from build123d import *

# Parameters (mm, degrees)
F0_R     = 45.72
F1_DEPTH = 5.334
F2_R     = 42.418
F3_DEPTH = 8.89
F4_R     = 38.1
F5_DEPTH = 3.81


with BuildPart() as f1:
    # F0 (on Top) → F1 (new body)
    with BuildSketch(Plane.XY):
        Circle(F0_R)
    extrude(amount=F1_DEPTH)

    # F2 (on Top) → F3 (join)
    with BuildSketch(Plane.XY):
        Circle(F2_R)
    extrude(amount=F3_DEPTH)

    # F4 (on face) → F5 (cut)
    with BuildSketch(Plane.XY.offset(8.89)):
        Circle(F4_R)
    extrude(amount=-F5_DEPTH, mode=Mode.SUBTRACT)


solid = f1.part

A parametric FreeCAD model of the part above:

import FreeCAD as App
import Part
import Sketcher

V = App.Vector
Q = App.Units.Quantity

doc = App.newDocument("Part")
params = doc.addObject("Spreadsheet::Sheet", "Params")
for row, (alias, value) in enumerate([
    ("sketch1_diameter", "3.6 in"),
    ("pad1_length", "0.21 in"),
    ("sketch2_diameter", "3.34 in"),
    ("pad2_length", "0.35 in"),
    ("sketch3_diameter", "3 in"),
    ("pocket1_length", "0.15 in"),
], start=1):
    params.set(f"A{row}", alias)
    params.set(f"B{row}", "=" + value)
    params.setAlias(f"B{row}", alias)

body = doc.addObject("PartDesign::Body", "Body")

sketch1 = body.newObject("Sketcher::SketchObject", "Sketch")
sketch1.AttachmentSupport = (doc.getObject("XY_Plane"), [""])
sketch1.MapMode = "FlatFace"
sketch1.addGeometry(Part.Circle(V(0, 0, 0), V(0, 0, 1), 46), False)
sketch1.addConstraint([
    Sketcher.Constraint("Coincident", 0, 3, -1, 1),
    Sketcher.Constraint("Diameter", 0, Q("3.6 in")),
])
sketch1.setExpression("Constraints[1]", "Params.sketch1_diameter")
pad1 = body.newObject("PartDesign::Pad", "Pad")
pad1.Profile = sketch1
pad1.setExpression("Length", "Params.pad1_length")

sketch2 = body.newObject("Sketcher::SketchObject", "Sketch001")
sketch2.AttachmentSupport = (doc.getObject("XY_Plane"), [""])
sketch2.MapMode = "FlatFace"
sketch2.addGeometry(Part.Circle(V(0, 0, 0), V(0, 0, 1), 42), False)
sketch2.addConstraint([
    Sketcher.Constraint("Coincident", 0, 3, -1, 1),
    Sketcher.Constraint("Diameter", 0, Q("3.34 in")),
])
sketch2.setExpression("Constraints[1]", "Params.sketch2_diameter")
pad2 = body.newObject("PartDesign::Pad", "Pad001")
pad2.Profile = sketch2
pad2.setExpression("Length", "Params.pad2_length")

sketch3 = body.newObject("Sketcher::SketchObject", "Sketch002")
sketch3.AttachmentSupport = (doc.getObject("XY_Plane"), [""])
sketch3.MapMode = "FlatFace"
sketch3.AttachmentOffset = App.Placement(V(0, 0, 0.35 * 25.4), App.Rotation())
sketch3.addGeometry(Part.Circle(V(0, 0, 0), V(0, 0, 1), 38), False)
sketch3.addConstraint([
    Sketcher.Constraint("Coincident", 0, 3, -1, 1),
    Sketcher.Constraint("Diameter", 0, Q("3 in")),
])
sketch3.setExpression("Constraints[1]", "Params.sketch3_diameter")
pocket1 = body.newObject("PartDesign::Pocket", "Pocket")
pocket1.Profile = sketch3
pocket1.setExpression("Length", "Params.pocket1_length")

doc.recompute()
